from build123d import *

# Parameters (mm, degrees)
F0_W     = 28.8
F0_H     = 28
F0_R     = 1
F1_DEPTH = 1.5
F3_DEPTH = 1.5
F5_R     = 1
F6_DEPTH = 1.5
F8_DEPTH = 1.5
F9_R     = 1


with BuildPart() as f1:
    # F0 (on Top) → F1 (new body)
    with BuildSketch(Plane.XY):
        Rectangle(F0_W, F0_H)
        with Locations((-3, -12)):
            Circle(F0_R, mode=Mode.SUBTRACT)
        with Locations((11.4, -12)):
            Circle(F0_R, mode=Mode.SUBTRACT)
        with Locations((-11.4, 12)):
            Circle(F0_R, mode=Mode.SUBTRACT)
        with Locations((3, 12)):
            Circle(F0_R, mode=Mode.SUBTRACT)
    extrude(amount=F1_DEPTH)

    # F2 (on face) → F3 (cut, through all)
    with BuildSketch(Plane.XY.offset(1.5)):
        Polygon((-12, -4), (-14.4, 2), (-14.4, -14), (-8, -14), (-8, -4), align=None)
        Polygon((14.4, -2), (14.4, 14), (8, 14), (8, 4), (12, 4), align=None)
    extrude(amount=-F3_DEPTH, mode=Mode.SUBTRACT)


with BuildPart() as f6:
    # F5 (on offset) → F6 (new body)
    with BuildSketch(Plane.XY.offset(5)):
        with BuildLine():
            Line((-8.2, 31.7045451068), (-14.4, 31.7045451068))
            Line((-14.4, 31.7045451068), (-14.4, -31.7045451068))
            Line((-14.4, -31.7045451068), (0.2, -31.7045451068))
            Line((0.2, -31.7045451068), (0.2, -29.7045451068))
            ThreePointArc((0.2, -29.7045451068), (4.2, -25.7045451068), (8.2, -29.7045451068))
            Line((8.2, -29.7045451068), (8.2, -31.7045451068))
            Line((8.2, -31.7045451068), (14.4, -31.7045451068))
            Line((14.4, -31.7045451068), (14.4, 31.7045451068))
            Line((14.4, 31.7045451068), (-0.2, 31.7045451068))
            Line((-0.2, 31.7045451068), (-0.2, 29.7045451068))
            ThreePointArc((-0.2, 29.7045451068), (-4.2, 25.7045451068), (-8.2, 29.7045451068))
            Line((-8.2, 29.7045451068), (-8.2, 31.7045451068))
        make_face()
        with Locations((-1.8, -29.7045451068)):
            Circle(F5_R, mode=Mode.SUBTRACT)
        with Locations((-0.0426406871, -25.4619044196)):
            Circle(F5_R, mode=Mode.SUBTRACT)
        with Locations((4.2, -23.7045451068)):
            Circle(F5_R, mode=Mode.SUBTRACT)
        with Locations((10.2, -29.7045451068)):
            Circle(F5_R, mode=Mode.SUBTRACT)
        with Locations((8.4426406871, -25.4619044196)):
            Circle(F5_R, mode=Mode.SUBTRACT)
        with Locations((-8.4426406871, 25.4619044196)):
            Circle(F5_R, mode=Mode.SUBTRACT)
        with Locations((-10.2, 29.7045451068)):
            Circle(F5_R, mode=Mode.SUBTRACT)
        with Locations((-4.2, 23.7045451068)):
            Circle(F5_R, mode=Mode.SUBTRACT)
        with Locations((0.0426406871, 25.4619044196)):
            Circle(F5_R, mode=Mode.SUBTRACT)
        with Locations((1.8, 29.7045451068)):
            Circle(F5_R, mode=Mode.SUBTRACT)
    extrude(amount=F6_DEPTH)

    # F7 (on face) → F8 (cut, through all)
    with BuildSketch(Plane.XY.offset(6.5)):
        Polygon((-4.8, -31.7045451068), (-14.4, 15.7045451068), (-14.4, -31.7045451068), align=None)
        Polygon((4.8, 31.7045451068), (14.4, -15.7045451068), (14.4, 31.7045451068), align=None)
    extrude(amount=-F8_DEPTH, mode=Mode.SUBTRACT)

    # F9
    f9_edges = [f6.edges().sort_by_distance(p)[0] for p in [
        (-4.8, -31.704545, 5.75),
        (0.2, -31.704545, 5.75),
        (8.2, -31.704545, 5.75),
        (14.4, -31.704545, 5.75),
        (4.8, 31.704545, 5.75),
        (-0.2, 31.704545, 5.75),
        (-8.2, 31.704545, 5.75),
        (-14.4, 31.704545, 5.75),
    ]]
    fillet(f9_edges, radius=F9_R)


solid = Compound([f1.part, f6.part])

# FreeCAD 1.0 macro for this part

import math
import FreeCAD as App
import Part
import Sketcher

V = App.Vector
Q = App.Units.Quantity


def edges_at(feature, points):
    """Names of the edges that pass closest to the given points."""
    edges = feature.Shape.Edges
    near = lambda p: min(range(len(edges)), key=lambda i: edges[i].distToShape(Part.Vertex(*p))[0])
    return sorted({f"Edge{near(p) + 1}" for p in points})


def add_polygon(sketch, points):
    """Adds a closed chain of lines whose ends are joined by coincident constraints."""
    first, n = sketch.GeometryCount, len(points)
    for a, b in zip(points, points[1:] + points[:1]):
        sketch.addGeometry(Part.LineSegment(App.Vector(*a, 0), App.Vector(*b, 0)), False)
    for i in range(n):
        sketch.addConstraint(Sketcher.Constraint("Coincident", first + i, 2, first + (i + 1) % n, 1))

doc = App.newDocument("Part")
body = doc.addObject("PartDesign::Body", "Body")

# Sketch on XY plane
sketch1 = body.newObject("Sketcher::SketchObject", "Sketch")
sketch1.AttachmentSupport = (doc.getObject("XY_Plane"), [""])
sketch1.MapMode = "FlatFace"
add_polygon(sketch1, [(-14.4, 14), (-14.4, -14), (14.4, -14), (14.4, 14)])  # lines 0-3
sketch1.addGeometry(Part.Circle(V(-3, -12, 0), V(0, 0, 1), 1), False)  # 4
sketch1.addGeometry(Part.Circle(V(11.4, -12, 0), V(0, 0, 1), 1), False)  # 5
sketch1.addGeometry(Part.Circle(V(-11.4, 12, 0), V(0, 0, 1), 1), False)  # 6
sketch1.addGeometry(Part.Circle(V(3, 12, 0), V(0, 0, 1), 1), False)  # 7
sketch1.addConstraint(Sketcher.Constraint("Vertical", 0))
sketch1.addConstraint(Sketcher.Constraint("Horizontal", 1))
sketch1.addConstraint(Sketcher.Constraint("Vertical", 2))
sketch1.addConstraint(Sketcher.Constraint("Horizontal", 3))
sketch1.addConstraint(Sketcher.Constraint("Equal", 4, 5))
sketch1.addConstraint(Sketcher.Constraint("Equal", 5, 6))
sketch1.addConstraint(Sketcher.Constraint("Equal", 6, 7))
sketch1.addConstraint(Sketcher.Constraint("Symmetric", 5, 3, 6, 3, -1, 1))
sketch1.addConstraint(Sketcher.Constraint("Symmetric", 4, 3, 7, 3, -1, 1))
sketch1.addConstraint(Sketcher.Constraint("Symmetric", 0, 2, 2, 2, -1, 1))
sketch1.addConstraint(Sketcher.Constraint("Horizontal", 4, 3, 5, 3))
sketch1.addConstraint(Sketcher.Constraint("Diameter", 4, Q("2 mm")))
sketch1.addConstraint(Sketcher.Constraint("DistanceY", 0, 2, 0, 1, Q("28 mm")))
sketch1.addConstraint(Sketcher.Constraint("DistanceX", 1, 1, 1, 2, Q("28.8 mm")))
sketch1.addConstraint(Sketcher.Constraint("DistanceX", 4, 3, -1, 1, Q("3 mm")))
sketch1.addConstraint(Sketcher.Constraint("DistanceY", 4, 3, -1, 1, Q("12 mm")))
sketch1.addConstraint(Sketcher.Constraint("DistanceX", 0, 2, 6, 3, Q("3 mm")))
pad1 = body.newObject("PartDesign::Pad", "Pad")
pad1.Profile = sketch1
pad1.Length = 1.5

# Sketch on XY plane
sketch2 = body.newObject("Sketcher::SketchObject", "Sketch001")
sketch2.AttachmentSupport = (doc.getObject("XY_Plane"), [""])
sketch2.MapMode = "FlatFace"
sketch2.AttachmentOffset = App.Placement(V(0, 0, 1.5), App.Rotation())
add_polygon(sketch2, [(-12, -4), (-14.4, 2), (-14.4, -14), (-8, -14), (-8, -4)])  # lines 0-4
add_polygon(sketch2, [(14.4, -2), (14.4, 14), (8, 14), (8, 4), (12, 4)])  # lines 5-9
sketch2.addConstraint(Sketcher.Constraint("Vertical", 1))
sketch2.addConstraint(Sketcher.Constraint("Horizontal", 2))
sketch2.addConstraint(Sketcher.Constraint("Vertical", 3))
sketch2.addConstraint(Sketcher.Constraint("Horizontal", 4))
sketch2.addConstraint(Sketcher.Constraint("Vertical", 5))
sketch2.addConstraint(Sketcher.Constraint("Horizontal", 6))
sketch2.addConstraint(Sketcher.Constraint("Vertical", 7))
sketch2.addConstraint(Sketcher.Constraint("Horizontal", 8))
sketch2.addConstraint(Sketcher.Constraint("Symmetric", 1, 2, 5, 2, -1, 1))
sketch2.addConstraint(Sketcher.Constraint("Symmetric", 3, 2, 7, 2, -1, 1))
sketch2.addConstraint(Sketcher.Constraint("Parallel", 0, 9))
sketch2.addConstraint(Sketcher.Constraint("Equal", 4, 8))
sketch2.addConstraint(Sketcher.Constraint("DistanceX", 4, 2, 4, 1, Q("4 mm")))
sketch2.addConstraint(Sketcher.Constraint("DistanceY", 1, 2, 1, 1, Q("16 mm")))
sketch2.addConstraint(Sketcher.Constraint("DistanceY", 3, 1, 3, 2, Q("10 mm")))
sketch2.addConstraint(Sketcher.Constraint("DistanceX", 2, 1, 2, 2, Q("6.4 mm")))
sketch2.addConstraint(Sketcher.Constraint("DistanceY", -1, 1, 0, 2, Q("2 mm")))
sketch2.addConstraint(Sketcher.Constraint("DistanceX", 2, 2, -1, 1, Q("8 mm")))
pocket1 = body.newObject("PartDesign::Pocket", "Pocket")
pocket1.Profile = sketch2
pocket1.Type = "ThroughAll"
body2 = doc.addObject("PartDesign::Body", "Body001")

# Sketch on XY plane
sketch3 = body2.newObject("Sketcher::SketchObject", "Sketch002")
sketch3.AttachmentSupport = (doc.getObject("XY_Plane001"), [""])
sketch3.MapMode = "FlatFace"
sketch3.AttachmentOffset = App.Placement(V(0, 0, 5), App.Rotation())
sketch3.addGeometry(Part.LineSegment(V(-8.2, 31.7, 0), V(-14.4, 31.7, 0)), False)
sketch3.addGeometry(Part.LineSegment(V(-14.4, 31.7, 0), V(-14.4, -31.7, 0)), False)
sketch3.addGeometry(Part.LineSegment(V(-14.4, -31.7, 0), V(0.2, -31.7, 0)), False)
sketch3.addGeometry(Part.LineSegment(V(0.2, -31.7, 0), V(0.2, -29.7, 0)), False)
sketch3.addGeometry(Part.ArcOfCircle(Part.Circle(V(4.2, -29.7, 0), V(0, 0, 1), 4), math.radians(0), math.radians(180)), False)
sketch3.addGeometry(Part.LineSegment(V(8.2, -29.7, 0), V(8.2, -31.7, 0)), False)
sketch3.addGeometry(Part.LineSegment(V(8.2, -31.7, 0), V(14.4, -31.7, 0)), False)
sketch3.addGeometry(Part.LineSegment(V(14.4, -31.7, 0), V(14.4, 31.7, 0)), False)
sketch3.addGeometry(Part.LineSegment(V(14.4, 31.7, 0), V(-0.2, 31.7, 0)), False)
sketch3.addGeometry(Part.LineSegment(V(-0.2, 31.7, 0), V(-0.2, 29.7, 0)), False)
sketch3.addGeometry(Part.ArcOfCircle(Part.Circle(V(-4.2, 29.7, 0), V(0, 0, 1), 4), math.radians(180), math.radians(360)), False)
sketch3.addGeometry(Part.LineSegment(V(-8.2, 29.7, 0), V(-8.2, 31.7, 0)), False)
sketch3.addGeometry(Part.Circle(V(-1.8, -29.7, 0), V(0, 0, 1), 1), False)
sketch3.addGeometry(Part.Circle(V(0, -25.5, 0), V(0, 0, 1), 1), False)
sketch3.addGeometry(Part.Circle(V(4.2, -23.7, 0), V(0, 0, 1), 1), False)
sketch3.addGeometry(Part.Circle(V(10.2, -29.7, 0), V(0, 0, 1), 1), False)
sketch3.addGeometry(Part.Circle(V(8.4, -25.5, 0), V(0, 0, 1), 1), False)
sketch3.addGeometry(Part.Circle(V(-8.4, 25.5, 0), V(0, 0, 1), 1), False)
sketch3.addGeometry(Part.Circle(V(-10.2, 29.7, 0), V(0, 0, 1), 1), False)
sketch3.addGeometry(Part.Circle(V(-4.2, 23.7, 0), V(0, 0, 1), 1), False)
sketch3.addGeometry(Part.Circle(V(0, 25.5, 0), V(0, 0, 1), 1), False)
sketch3.addGeometry(Part.Circle(V(1.8, 29.7, 0), V(0, 0, 1), 1), False)
sketch3.addConstraint(Sketcher.Constraint("Coincident", 0, 2, 1, 1))
sketch3.addConstraint(Sketcher.Constraint("Coincident", 1, 2, 2, 1))
sketch3.addConstraint(Sketcher.Constraint("Coincident", 2, 2, 3, 1))
sketch3.addConstraint(Sketcher.Constraint("Tangent", 3, 2, 4, 2))
sketch3.addConstraint(Sketcher.Constraint("Tangent", 4, 1, 5, 1))
sketch3.addConstraint(Sketcher.Constraint("Coincident", 5, 2, 6, 1))
sketch3.addConstraint(Sketcher.Constraint("Coincident", 6, 2, 7, 1))
sketch3.addConstraint(Sketcher.Constraint("Coincident", 7, 2, 8, 1))
sketch3.addConstraint(Sketcher.Constraint("Coincident", 8, 2, 9, 1))
sketch3.addConstraint(Sketcher.Constraint("Tangent", 9, 2, 10, 2))
sketch3.addConstraint(Sketcher.Constraint("Tangent", 10, 1, 11, 1))
sketch3.addConstraint(Sketcher.Constraint("Coincident", 11, 2, 0, 1))
sketch3.addConstraint(Sketcher.Constraint("Horizontal", 0))
sketch3.addConstraint(Sketcher.Constraint("Vertical", 1))
sketch3.addConstraint(Sketcher.Constraint("Horizontal", 2))
sketch3.addConstraint(Sketcher.Constraint("Vertical", 3))
sketch3.addConstraint(Sketcher.Constraint("Vertical", 5))
sketch3.addConstraint(Sketcher.Constraint("Horizontal", 6))
sketch3.addConstraint(Sketcher.Constraint("Vertical", 7))
sketch3.addConstraint(Sketcher.Constraint("Horizontal", 8))
sketch3.addConstraint(Sketcher.Constraint("Vertical", 9))
sketch3.addConstraint(Sketcher.Constraint("Vertical", 11))
sketch3.addConstraint(Sketcher.Constraint("Equal", 4, 10))
sketch3.addConstraint(Sketcher.Constraint("Equal", 12, 13))
sketch3.addConstraint(Sketcher.Constraint("Equal", 13, 14))
sketch3.addConstraint(Sketcher.Constraint("Equal", 14, 15))
sketch3.addConstraint(Sketcher.Constraint("Equal", 15, 16))
sketch3.addConstraint(Sketcher.Constraint("Equal", 16, 17))
sketch3.addConstraint(Sketcher.Constraint("Equal", 17, 18))
sketch3.addConstraint(Sketcher.Constraint("Equal", 18, 19))
sketch3.addConstraint(Sketcher.Constraint("Equal", 19, 20))
sketch3.addConstraint(Sketcher.Constraint("Equal", 20, 21))
sketch3.addConstraint(Sketcher.Constraint("Symmetric", 4, 3, 10, 3, -1, 1))
sketch3.addConstraint(Sketcher.Constraint("Symmetric", 16, 3, 17, 3, -1, 1))
sketch3.addConstraint(Sketcher.Constraint("Symmetric", 15, 3, 18, 3, -1, 1))
sketch3.addConstraint(Sketcher.Constraint("Symmetric", 14, 3, 19, 3, -1, 1))
sketch3.addConstraint(Sketcher.Constraint("Symmetric", 13, 3, 20, 3, -1, 1))
sketch3.addConstraint(Sketcher.Constraint("Symmetric", 12, 3, 21, 3, -1, 1))
sketch3.addConstraint(Sketcher.Constraint("Symmetric", 0, 2, 6, 2, -1, 1))
sketch3.addConstraint(Sketcher.Constraint("Horizontal", 4, 3, 12, 3))
sketch3.addConstraint(Sketcher.Constraint("Horizontal", 12, 3, 15, 3))
sketch3.addConstraint(Sketcher.Constraint("Horizontal", 13, 3, 16, 3))
sketch3.addConstraint(Sketcher.Constraint("Horizontal", 2, 2, 5, 2))
sketch3.addConstraint(Sketcher.Constraint("Horizontal", 0, 2, 7, 2))
sketch3.addConstraint(Sketcher.Constraint("Vertical", 4, 3, 14, 3))
sketch3.addConstraint(Sketcher.Constraint("Diameter", 12, Q("2 mm")))
sketch3.addConstraint(Sketcher.Constraint("Radius", 4, Q("4 mm")))
sketch3.addConstraint(Sketcher.Constraint("DistanceY", 3, 1, 3, 2, Q("2 mm")))
sketch3.addConstraint(Sketcher.Constraint("DistanceX", 0, 2, 0, 1, Q("6.2 mm")))
sketch3.addConstraint(Sketcher.Constraint("DistanceX", 2, 1, 2, 2, Q("14.6 mm")))
sketch3.addConstraint(Sketcher.Constraint("DistanceX", 12, 3, 4, 3, Q("6 mm")))
sketch3.addConstraint(Sketcher.Constraint("DistanceY", 4, 3, 14, 3, Q("6 mm")))
sketch3.addConstraint(Sketcher.Constraint("DistanceX", 4, 3, 15, 3, Q("6 mm")))
sketch3.addConstraint(Sketcher.Constraint("DistanceX", 17, 3, 13, 3, Q("8.4 mm")))
sketch3.addConstraint(Sketcher.Constraint("DistanceY", 1, 2, 1, 1, Q("63.40909 mm")))
sketch3.addConstraint(Sketcher.Constraint("DistanceX", 13, 3, -1, 1, Q("0.042641 mm")))
sketch3.addConstraint(Sketcher.Constraint("DistanceY", 12, 3, 13, 3, Q("4.242641 mm")))
pad2 = body2.newObject("PartDesign::Pad", "Pad001")
pad2.Profile = sketch3
pad2.Length = 1.5

# Sketch on XY plane
sketch4 = body2.newObject("Sketcher::SketchObject", "Sketch003")
sketch4.AttachmentSupport = (doc.getObject("XY_Plane001"), [""])
sketch4.MapMode = "FlatFace"
sketch4.AttachmentOffset = App.Placement(V(0, 0, 6.5), App.Rotation())
add_polygon(sketch4, [(-5, -32), (-14, 16), (-14, -32)])  # lines 0-2
add_polygon(sketch4, [(5, 32), (14, -16), (14, 32)])  # lines 3-5
sketch4.addConstraint(Sketcher.Constraint("Vertical", 1))
sketch4.addConstraint(Sketcher.Constraint("Horizontal", 2))
sketch4.addConstraint(Sketcher.Constraint("Vertical", 4))
sketch4.addConstraint(Sketcher.Constraint("Horizontal", 5))
sketch4.addConstraint(Sketcher.Constraint("Symmetric", 0, 2, 3, 2, -1, 1))
sketch4.addConstraint(Sketcher.Constraint("Symmetric", 2, 2, 5, 2, -1, 1))
sketch4.addConstraint(Sketcher.Constraint("DistanceX", 2, 1, 2, 2, Q("9.6 mm")))
sketch4.addConstraint(Sketcher.Constraint("DistanceY", 2, 2, 3, 2, Q("16 mm")))
sketch4.addConstraint(Sketcher.Constraint("DistanceX", 0, 2, -1, 1, Q("14.4 mm")))
sketch4.addConstraint(Sketcher.Constraint("DistanceY", 1, 2, 1, 1, Q("47.40909 mm")))
pocket2 = body2.newObject("PartDesign::Pocket", "Pocket001")
pocket2.Profile = sketch4
pocket2.Type = "ThroughAll"
doc.recompute()

fillet = body2.newObject("PartDesign::Fillet", "Fillet")
fillet.Base = (pocket2, edges_at(pocket2, [
    (-4.8, -31.705, 5.75),
    (0.2, -31.705, 5.75),
    (8.2, -31.705, 5.75),
    (14.4, -31.705, 5.75),
    (4.8, 31.705, 5.75),
    (-0.2, 31.705, 5.75),
    (-8.2, 31.705, 5.75),
    (-14.4, 31.705, 5.75),
]))
fillet.Radius = 1

doc.recompute()
